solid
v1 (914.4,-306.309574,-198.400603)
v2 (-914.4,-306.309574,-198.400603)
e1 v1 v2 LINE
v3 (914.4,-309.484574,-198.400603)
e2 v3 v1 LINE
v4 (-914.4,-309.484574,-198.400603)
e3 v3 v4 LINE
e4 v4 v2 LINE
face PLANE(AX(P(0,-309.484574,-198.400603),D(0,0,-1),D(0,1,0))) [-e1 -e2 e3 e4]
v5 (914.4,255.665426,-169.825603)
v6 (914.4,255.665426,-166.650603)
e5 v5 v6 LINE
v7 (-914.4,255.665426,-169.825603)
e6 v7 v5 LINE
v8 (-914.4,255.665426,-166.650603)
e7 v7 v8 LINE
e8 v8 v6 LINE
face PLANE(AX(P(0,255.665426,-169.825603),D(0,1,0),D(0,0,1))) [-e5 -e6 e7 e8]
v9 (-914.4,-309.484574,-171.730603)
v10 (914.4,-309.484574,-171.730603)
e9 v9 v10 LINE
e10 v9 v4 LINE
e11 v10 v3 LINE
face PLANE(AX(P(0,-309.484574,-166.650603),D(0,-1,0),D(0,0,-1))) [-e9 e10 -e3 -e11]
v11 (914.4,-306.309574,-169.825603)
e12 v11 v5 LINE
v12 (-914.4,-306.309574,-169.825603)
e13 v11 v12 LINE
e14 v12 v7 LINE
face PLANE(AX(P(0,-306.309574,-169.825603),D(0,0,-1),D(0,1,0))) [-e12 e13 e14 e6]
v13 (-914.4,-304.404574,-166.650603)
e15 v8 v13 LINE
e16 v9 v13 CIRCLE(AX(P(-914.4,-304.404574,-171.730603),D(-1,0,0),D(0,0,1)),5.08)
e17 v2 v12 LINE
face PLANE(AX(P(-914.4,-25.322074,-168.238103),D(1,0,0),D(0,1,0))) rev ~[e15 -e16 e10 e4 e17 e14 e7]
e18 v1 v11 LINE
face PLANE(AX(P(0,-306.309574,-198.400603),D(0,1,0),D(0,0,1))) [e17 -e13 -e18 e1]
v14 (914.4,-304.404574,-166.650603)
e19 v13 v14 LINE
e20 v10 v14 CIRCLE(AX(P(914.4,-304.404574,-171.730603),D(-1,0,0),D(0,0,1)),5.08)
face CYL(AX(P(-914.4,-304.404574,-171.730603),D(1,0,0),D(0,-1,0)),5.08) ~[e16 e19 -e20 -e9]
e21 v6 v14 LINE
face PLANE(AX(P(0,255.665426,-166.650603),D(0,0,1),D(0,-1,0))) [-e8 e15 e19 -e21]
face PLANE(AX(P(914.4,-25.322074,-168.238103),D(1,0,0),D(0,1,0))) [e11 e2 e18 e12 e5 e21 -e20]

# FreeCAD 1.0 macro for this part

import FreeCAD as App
import Part
import Sketcher
from FreeCAD import Vector
Q = App.Units.Quantity


def edges_at(feature, points):
    """Names of the edges that pass closest to the given points."""
    edges = feature.Shape.Edges
    near = lambda p: min(range(len(edges)), key=lambda i: edges[i].distToShape(Part.Vertex(*p))[0])
    return sorted({f"Edge{near(p) + 1}" for p in points})


def add_polygon(sketch, points):
    """Adds a closed chain of lines whose ends are joined by coincident constraints."""
    first, n = sketch.GeometryCount, len(points)
    for a, b in zip(points, points[1:] + points[:1]):
        sketch.addGeometry(Part.LineSegment(App.Vector(*a, 0), App.Vector(*b, 0)), False)
    for i in range(n):
        sketch.addConstraint(Sketcher.Constraint("Coincident", first + i, 2, first + (i + 1) % n, 1))

doc = App.newDocument("Part")
body = doc.addObject("PartDesign::Body", "Body")

sketch1 = doc.addObject("Sketcher::SketchObject", "Sketch")
body.addObject(sketch1)
sketch1.AttachmentSupport = (doc.YZ_Plane, [""])
sketch1.MapMode = "FlatFace"
add_polygon(sketch1, [(-306.3, -169.8), (255.7, -169.8), (255.7, -166.7), (-309.5, -166.7), (-309.5, -198.4), (-306.3, -198.4)])
sketch1.addConstraint([
    Sketcher.Constraint("Horizontal", 0),
    Sketcher.Constraint("Vertical", 1),
    Sketcher.Constraint("Horizontal", 2),
    Sketcher.Constraint("Vertical", 3),
    Sketcher.Constraint("Horizontal", 4),
    Sketcher.Constraint("Vertical", 5),
    Sketcher.Constraint("Equal", 4, 1),
    Sketcher.Constraint("DistanceX", 2, 2, 2, 1, Q("22.25 in")),
    Sketcher.Constraint("DistanceY", 3, 2, 3, 1, Q("1.25 in")),
    Sketcher.Constraint("DistanceX", 0, 1, 0, 2, Q("22.125 in")),
    Sketcher.Constraint("DistanceX", -1, 1, 0, 2, Q("255.665426 mm")),
    Sketcher.Constraint("DistanceY", 0, 2, -1, 1, Q("169.825603 mm")),
])
pad1 = doc.addObject("PartDesign::Pad", "Pad")
body.addObject(pad1)
pad1.Profile = sketch1
pad1.Length = Q("72 in")
pad1.Midplane = True
doc.recompute()

fillet = doc.addObject("PartDesign::Fillet", "Fillet")
body.addObject(fillet)
fillet.Base = (pad1, edges_at(pad1, [(0, -309.485, -166.651)]))
fillet.Radius = Q("0.2 in")

doc.recompute()
